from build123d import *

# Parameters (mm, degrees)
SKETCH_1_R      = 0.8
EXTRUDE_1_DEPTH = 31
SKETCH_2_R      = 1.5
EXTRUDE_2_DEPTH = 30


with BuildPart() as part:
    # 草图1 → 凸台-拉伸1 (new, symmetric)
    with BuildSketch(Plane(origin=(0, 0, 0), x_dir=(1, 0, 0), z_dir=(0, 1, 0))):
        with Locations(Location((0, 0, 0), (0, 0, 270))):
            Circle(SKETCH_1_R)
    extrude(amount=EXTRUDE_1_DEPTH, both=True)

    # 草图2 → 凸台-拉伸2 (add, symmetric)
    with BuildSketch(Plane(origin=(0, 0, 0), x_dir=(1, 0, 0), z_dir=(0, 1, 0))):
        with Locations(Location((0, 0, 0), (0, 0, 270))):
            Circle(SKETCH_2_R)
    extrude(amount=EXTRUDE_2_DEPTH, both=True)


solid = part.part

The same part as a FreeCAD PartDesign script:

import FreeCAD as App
import Part
import Sketcher
from FreeCAD import Vector

doc = App.newDocument("Part")
body = doc.addObject("PartDesign::Body", "Body")

# Sketch on XZ plane
sketch1 = doc.addObject("Sketcher::SketchObject", "Sketch")
body.addObject(sketch1)
sketch1.AttachmentSupport = (doc.XZ_Plane, [""])
sketch1.MapMode = "FlatFace"
sketch1.addGeometry(Part.Circle(Vector(0, 0, 0), Vector(0, 0, 1), 0.8), False)
sketch1.addConstraint(Sketcher.Constraint("Coincident", 0, 3, -1, 1))
sketch1.addConstraint(Sketcher.Constraint("Diameter", 0, 1.6))
pad1 = doc.addObject("PartDesign::Pad", "Pad")
body.addObject(pad1)
pad1.Profile = sketch1
pad1.Length = 62
pad1.Midplane = True

# Sketch on XZ plane
sketch2 = doc.addObject("Sketcher::SketchObject", "Sketch001")
body.addObject(sketch2)
sketch2.AttachmentSupport = (doc.XZ_Plane, [""])
sketch2.MapMode = "FlatFace"
sketch2.addGeometry(Part.Circle(Vector(0, 0, 0), Vector(0, 0, 1), 1.5), False)
sketch2.addConstraint(Sketcher.Constraint("Coincident", 0, 3, -1, 1))
sketch2.addConstraint(Sketcher.Constraint("Diameter", 0, 3.0))
pad2 = doc.addObject("PartDesign::Pad", "Pad001")
body.addObject(pad2)
pad2.Profile = sketch2
pad2.Length = 60
pad2.Midplane = True

doc.recompute()
